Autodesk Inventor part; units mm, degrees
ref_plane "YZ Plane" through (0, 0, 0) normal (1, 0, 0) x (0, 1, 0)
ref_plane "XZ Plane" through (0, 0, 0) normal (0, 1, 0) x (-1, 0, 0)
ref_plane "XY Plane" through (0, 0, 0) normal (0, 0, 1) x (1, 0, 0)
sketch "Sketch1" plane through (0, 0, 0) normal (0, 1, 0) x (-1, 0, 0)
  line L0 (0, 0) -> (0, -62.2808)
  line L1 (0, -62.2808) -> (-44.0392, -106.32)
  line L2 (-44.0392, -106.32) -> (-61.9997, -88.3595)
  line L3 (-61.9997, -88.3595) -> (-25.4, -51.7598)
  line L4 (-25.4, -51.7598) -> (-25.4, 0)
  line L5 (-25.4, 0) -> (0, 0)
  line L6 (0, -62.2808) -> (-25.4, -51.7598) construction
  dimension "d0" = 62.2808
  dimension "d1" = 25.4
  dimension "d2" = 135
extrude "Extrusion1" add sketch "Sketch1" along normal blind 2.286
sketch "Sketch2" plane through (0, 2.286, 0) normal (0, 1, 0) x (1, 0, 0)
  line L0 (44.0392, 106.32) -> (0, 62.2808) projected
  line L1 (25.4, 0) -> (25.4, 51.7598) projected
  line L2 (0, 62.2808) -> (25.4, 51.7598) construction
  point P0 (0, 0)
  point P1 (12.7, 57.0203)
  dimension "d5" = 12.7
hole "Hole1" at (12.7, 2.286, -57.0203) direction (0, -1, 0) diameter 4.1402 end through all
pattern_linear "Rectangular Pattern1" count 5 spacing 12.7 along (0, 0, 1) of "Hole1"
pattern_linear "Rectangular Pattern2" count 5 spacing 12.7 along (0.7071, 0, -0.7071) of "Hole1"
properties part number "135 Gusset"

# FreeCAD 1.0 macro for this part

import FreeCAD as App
import Part
import Sketcher

V = App.Vector
Q = App.Units.Quantity

doc = App.newDocument("Part")
body = doc.addObject("PartDesign::Body", "Body")

# Sketch on XZ plane
sketch1 = body.newObject("Sketcher::SketchObject", "Sketch")
sketch1.AttachmentSupport = (doc.getObject("XZ_Plane"), [""])
sketch1.MapMode = "FlatFace"
sketch1.addGeometry(Part.LineSegment(V(0, -62, 0), V(0, 0, 0)), False)
sketch1.addGeometry(Part.LineSegment(V(0, 0, 0), V(25, 0, 0)), False)
sketch1.addGeometry(Part.LineSegment(V(25, 0, 0), V(25, -52, 0)), False)
sketch1.addGeometry(Part.LineSegment(V(25, -52, 0), V(62, -88, 0)), False)
sketch1.addGeometry(Part.LineSegment(V(62, -88, 0), V(44, -106, 0)), False)
sketch1.addGeometry(Part.LineSegment(V(44, -106, 0), V(0, -62, 0)), False)
sketch1.addConstraint(Sketcher.Constraint("Coincident", 0, 2, 1, 1))
sketch1.addConstraint(Sketcher.Constraint("Coincident", 1, 2, 2, 1))
sketch1.addConstraint(Sketcher.Constraint("Coincident", 2, 2, 3, 1))
sketch1.addConstraint(Sketcher.Constraint("Coincident", 3, 2, 4, 1))
sketch1.addConstraint(Sketcher.Constraint("Coincident", 4, 2, 5, 1))
sketch1.addConstraint(Sketcher.Constraint("Coincident", 5, 2, 0, 1))
sketch1.addConstraint(Sketcher.Constraint("Vertical", 0))
sketch1.addConstraint(Sketcher.Constraint("Horizontal", 1))
sketch1.addConstraint(Sketcher.Constraint("Vertical", 2))
sketch1.addConstraint(Sketcher.Constraint("Coincident", 0, 2, -1, 1))
sketch1.addConstraint(Sketcher.Constraint("Perpendicular", 3, 4))
sketch1.addConstraint(Sketcher.Constraint("Perpendicular", 4, 5))
sketch1.addConstraint(Sketcher.Constraint("DistanceX", 1, 1, 1, 2, Q("1 in")))
sketch1.addConstraint(Sketcher.Constraint("Distance", 4, Q("1 in")))
sketch1.addConstraint(Sketcher.Constraint("Angle", 4, Q("-135 deg")))
sketch1.addConstraint(Sketcher.Constraint("DistanceY", 0, 1, 0, 2, Q("2.452 in")))
sketch1.addConstraint(Sketcher.Constraint("Distance", 5, Q("2.452 in")))
pad1 = body.newObject("PartDesign::Pad", "Pad")
pad1.Profile = sketch1
pad1.Length = Q("0.09 in")
pad1.Reversed = True

# Sketch on XZ plane
sketch2 = body.newObject("Sketcher::SketchObject", "Sketch001")
sketch2.AttachmentSupport = (doc.getObject("XZ_Plane"), [""])
sketch2.MapMode = "FlatFace"
sketch2.AttachmentOffset = App.Placement(V(0, 0, -0.09 * 25.4), App.Rotation())
sketch2.addGeometry(Part.Circle(V(12.7, -57, 0), V(0, 0, 1), 2.1), False)
sketch2.addConstraint(Sketcher.Constraint("Diameter", 0, Q("0.163 in")))
sketch2.addConstraint(Sketcher.Constraint("DistanceX", -1, 1, 0, 3, Q("0.5 in")))
sketch2.addConstraint(Sketcher.Constraint("DistanceY", 0, 3, -1, 1, Q("2.2449 in")))
doc.recompute()
hole = body.newObject("PartDesign::Hole", "Hole")
hole.Profile = sketch2
hole.ThreadType = "None"
hole.Diameter = Q("0.163 in")
hole.DepthType = "ThroughAll"
hole.Reversed = True
doc.recompute()

linearpattern = body.newObject("PartDesign::LinearPattern", "LinearPattern")
linearpattern.Originals = [hole]
linearpattern.Direction = (doc.getObject("Z_Axis"), [""])
linearpattern.Mode = "offset"
linearpattern.Offset = Q("0.5 in")
linearpattern.Occurrences = 5
body.Tip = linearpattern
doc.recompute()

datumline = body.newObject("PartDesign::Line", "DatumLine")
datumline.Placement = App.Placement(V(0, 0, 0), App.Rotation(V(0, 0, 1), V(0.707106781, 0, -0.707106781)))
linearpattern2 = body.newObject("PartDesign::LinearPattern", "LinearPattern001")
linearpattern2.Originals = [hole]
linearpattern2.Direction = (datumline, [""])
linearpattern2.Mode = "offset"
linearpattern2.Offset = Q("0.5 in")
linearpattern2.Occurrences = 5
body.Tip = linearpattern2

doc.recompute()
